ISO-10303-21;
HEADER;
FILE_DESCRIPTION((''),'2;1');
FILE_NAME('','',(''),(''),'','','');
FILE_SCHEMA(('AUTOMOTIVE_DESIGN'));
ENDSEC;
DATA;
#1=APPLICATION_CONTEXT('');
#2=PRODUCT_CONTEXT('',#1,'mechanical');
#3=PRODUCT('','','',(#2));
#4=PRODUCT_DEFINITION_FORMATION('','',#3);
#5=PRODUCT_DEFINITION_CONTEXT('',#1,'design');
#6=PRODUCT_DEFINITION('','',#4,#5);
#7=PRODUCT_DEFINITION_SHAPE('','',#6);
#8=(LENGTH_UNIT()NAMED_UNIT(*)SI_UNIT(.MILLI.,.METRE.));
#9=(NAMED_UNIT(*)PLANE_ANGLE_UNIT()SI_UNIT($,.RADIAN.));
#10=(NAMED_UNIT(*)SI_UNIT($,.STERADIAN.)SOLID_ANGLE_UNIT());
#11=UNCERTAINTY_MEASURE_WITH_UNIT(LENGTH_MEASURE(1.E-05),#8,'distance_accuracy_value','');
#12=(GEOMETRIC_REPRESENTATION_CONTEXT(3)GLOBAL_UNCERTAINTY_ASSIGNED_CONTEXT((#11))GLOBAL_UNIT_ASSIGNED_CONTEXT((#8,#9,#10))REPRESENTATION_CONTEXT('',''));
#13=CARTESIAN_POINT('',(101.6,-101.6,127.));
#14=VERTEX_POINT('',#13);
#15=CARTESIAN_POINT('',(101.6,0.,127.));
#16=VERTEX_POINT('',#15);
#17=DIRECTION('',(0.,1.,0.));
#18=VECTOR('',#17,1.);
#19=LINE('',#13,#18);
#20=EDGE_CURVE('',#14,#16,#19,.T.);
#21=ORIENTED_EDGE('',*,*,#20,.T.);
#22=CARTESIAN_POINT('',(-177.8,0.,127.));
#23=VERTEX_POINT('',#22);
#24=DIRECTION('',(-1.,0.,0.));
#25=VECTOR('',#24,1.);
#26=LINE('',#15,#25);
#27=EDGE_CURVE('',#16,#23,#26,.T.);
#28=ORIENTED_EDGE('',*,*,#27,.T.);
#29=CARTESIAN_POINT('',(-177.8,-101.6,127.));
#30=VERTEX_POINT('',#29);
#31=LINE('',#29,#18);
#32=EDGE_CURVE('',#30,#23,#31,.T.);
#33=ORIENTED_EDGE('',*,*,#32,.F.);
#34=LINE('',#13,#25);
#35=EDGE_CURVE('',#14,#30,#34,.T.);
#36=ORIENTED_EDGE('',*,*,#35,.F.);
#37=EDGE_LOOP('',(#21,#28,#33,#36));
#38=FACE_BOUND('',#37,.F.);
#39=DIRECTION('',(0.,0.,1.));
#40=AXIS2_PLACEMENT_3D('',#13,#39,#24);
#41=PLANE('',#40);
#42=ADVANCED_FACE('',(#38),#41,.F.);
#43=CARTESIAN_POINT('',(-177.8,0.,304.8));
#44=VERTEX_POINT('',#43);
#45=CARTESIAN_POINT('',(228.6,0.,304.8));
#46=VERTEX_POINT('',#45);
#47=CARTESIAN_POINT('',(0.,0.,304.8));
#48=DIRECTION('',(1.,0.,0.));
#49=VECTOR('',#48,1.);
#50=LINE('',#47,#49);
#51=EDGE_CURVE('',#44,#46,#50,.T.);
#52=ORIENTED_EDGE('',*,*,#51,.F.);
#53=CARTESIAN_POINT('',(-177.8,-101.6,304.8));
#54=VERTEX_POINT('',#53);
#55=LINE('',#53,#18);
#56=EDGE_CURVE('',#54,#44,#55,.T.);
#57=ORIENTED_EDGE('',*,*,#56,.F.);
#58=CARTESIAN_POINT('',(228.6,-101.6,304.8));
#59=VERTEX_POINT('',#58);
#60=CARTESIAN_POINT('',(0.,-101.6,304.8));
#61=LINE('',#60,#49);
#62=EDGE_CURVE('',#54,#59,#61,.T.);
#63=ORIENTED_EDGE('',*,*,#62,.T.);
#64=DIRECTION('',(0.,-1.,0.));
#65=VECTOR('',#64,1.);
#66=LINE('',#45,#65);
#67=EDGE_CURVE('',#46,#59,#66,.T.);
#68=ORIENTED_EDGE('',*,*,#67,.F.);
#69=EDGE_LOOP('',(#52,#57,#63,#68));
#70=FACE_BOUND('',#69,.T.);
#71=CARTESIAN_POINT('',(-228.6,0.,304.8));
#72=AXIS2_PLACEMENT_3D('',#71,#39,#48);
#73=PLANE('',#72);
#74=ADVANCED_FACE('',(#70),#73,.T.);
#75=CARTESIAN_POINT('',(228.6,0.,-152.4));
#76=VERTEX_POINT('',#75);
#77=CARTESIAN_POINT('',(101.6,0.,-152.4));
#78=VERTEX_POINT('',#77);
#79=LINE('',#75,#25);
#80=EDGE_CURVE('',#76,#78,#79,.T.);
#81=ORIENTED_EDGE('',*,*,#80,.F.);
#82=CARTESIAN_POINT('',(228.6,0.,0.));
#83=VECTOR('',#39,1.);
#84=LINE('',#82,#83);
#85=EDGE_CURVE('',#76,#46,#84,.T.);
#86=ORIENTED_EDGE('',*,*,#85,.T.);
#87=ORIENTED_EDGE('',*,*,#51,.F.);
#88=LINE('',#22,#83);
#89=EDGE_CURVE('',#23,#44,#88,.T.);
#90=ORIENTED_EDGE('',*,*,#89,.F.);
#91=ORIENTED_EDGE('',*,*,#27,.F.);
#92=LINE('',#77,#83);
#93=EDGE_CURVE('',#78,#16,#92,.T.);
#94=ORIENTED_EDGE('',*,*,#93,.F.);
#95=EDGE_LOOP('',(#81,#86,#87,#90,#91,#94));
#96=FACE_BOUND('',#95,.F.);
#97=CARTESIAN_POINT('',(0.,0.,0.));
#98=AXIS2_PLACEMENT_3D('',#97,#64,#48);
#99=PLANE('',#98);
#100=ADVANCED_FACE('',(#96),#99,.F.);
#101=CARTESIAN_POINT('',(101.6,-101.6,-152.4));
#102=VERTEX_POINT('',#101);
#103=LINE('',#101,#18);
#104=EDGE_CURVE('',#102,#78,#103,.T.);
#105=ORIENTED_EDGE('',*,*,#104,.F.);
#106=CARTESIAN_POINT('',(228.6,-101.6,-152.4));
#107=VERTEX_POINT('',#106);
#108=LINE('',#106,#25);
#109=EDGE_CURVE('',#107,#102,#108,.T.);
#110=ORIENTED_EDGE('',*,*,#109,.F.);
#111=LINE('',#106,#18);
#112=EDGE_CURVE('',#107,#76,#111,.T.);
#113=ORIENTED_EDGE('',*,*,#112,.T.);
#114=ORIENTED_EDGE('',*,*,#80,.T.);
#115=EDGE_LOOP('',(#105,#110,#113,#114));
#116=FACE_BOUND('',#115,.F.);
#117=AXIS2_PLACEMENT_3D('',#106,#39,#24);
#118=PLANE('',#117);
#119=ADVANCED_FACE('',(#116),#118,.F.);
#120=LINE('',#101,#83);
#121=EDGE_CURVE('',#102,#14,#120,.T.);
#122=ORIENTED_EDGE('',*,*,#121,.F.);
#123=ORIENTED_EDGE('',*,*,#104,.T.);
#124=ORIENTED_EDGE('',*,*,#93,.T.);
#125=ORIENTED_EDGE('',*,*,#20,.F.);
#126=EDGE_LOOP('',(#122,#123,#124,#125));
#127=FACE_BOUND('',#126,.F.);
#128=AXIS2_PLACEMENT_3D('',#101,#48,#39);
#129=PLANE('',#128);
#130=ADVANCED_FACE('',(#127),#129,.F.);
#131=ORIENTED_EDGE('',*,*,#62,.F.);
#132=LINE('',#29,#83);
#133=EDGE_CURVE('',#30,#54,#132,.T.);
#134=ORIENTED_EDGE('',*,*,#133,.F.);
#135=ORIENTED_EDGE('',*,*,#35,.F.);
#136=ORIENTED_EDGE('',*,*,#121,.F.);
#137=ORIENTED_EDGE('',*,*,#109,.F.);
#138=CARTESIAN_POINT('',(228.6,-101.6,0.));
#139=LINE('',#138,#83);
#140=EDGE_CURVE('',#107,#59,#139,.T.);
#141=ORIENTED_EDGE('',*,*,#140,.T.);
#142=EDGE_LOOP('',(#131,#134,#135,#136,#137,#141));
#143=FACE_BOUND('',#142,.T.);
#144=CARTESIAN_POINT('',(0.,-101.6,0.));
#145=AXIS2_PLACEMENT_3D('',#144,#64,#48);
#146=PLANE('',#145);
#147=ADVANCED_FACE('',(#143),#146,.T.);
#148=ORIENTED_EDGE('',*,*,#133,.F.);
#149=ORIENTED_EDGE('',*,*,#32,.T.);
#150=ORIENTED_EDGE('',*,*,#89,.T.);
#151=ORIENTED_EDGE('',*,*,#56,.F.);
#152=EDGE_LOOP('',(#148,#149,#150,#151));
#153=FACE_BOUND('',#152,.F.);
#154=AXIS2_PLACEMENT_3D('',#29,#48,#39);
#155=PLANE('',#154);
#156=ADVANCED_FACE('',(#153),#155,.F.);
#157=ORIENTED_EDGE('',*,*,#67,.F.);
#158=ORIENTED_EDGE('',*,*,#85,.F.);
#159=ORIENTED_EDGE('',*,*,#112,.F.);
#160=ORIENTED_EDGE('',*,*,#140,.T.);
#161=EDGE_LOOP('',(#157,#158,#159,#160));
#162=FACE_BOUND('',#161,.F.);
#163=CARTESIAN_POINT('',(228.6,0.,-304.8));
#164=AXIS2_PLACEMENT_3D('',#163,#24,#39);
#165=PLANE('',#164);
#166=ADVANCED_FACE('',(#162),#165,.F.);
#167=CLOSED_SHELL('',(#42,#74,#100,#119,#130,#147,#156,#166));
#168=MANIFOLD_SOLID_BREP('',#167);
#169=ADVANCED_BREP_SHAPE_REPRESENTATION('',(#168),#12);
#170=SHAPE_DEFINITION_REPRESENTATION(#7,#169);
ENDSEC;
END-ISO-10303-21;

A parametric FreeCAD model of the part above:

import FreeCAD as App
import Part
import Sketcher

V = App.Vector
Q = App.Units.Quantity

doc = App.newDocument("Part")
body = doc.addObject("PartDesign::Body", "Body")

# Sketch on XZ plane
sketch1 = body.newObject("Sketcher::SketchObject", "Sketch")
sketch1.AttachmentSupport = (doc.getObject("XZ_Plane"), [""])
sketch1.MapMode = "FlatFace"
sketch1.addGeometry(Part.LineSegment(V(-229, 305, 0), V(-229, -305, 0)), False)
sketch1.addGeometry(Part.LineSegment(V(-229, -305, 0), V(229, -305, 0)), False)
sketch1.addGeometry(Part.LineSegment(V(229, -305, 0), V(229, 305, 0)), False)
sketch1.addGeometry(Part.LineSegment(V(229, 305, 0), V(-229, 305, 0)), False)
sketch1.addConstraint(Sketcher.Constraint("Coincident", 0, 2, 1, 1))
sketch1.addConstraint(Sketcher.Constraint("Coincident", 1, 2, 2, 1))
sketch1.addConstraint(Sketcher.Constraint("Coincident", 2, 2, 3, 1))
sketch1.addConstraint(Sketcher.Constraint("Coincident", 3, 2, 0, 1))
sketch1.addConstraint(Sketcher.Constraint("Vertical", 0))
sketch1.addConstraint(Sketcher.Constraint("Horizontal", 1))
sketch1.addConstraint(Sketcher.Constraint("Vertical", 2))
sketch1.addConstraint(Sketcher.Constraint("Horizontal", 3))
sketch1.addConstraint(Sketcher.Constraint("Symmetric", 0, 2, 2, 2, -1, 1))
sketch1.addConstraint(Sketcher.Constraint("DistanceX", 1, 1, 1, 2, Q("18 in")))
sketch1.addConstraint(Sketcher.Constraint("DistanceY", 0, 2, 0, 1, Q("24 in")))
pad1 = body.newObject("PartDesign::Pad", "Pad")
pad1.Profile = sketch1
pad1.Length = Q("4 in")

# Sketch on XZ plane
sketch2 = body.newObject("Sketcher::SketchObject", "Sketch001")
sketch2.AttachmentSupport = (doc.getObject("XZ_Plane"), [""])
sketch2.MapMode = "FlatFace"
sketch2.AttachmentOffset = App.Placement(V(0, 0, 4 * 25.4), App.Rotation())
sketch2.addGeometry(Part.LineSegment(V(102, 127, 0), V(-178, 127, 0)), False)
sketch2.addGeometry(Part.LineSegment(V(-178, 127, 0), V(-178, 305, 0)), False)
sketch2.addGeometry(Part.LineSegment(V(-178, 305, 0), V(-229, 305, 0)), False)
sketch2.addGeometry(Part.LineSegment(V(-229, 305, 0), V(-229, -305, 0)), False)
sketch2.addGeometry(Part.LineSegment(V(-229, -305, 0), V(229, -305, 0)), False)
sketch2.addGeometry(Part.LineSegment(V(229, -305, 0), V(229, -152, 0)), False)
sketch2.addGeometry(Part.LineSegment(V(229, -152, 0), V(102, -152, 0)), False)
sketch2.addGeometry(Part.LineSegment(V(102, -152, 0), V(102, 127, 0)), False)
sketch2.addConstraint(Sketcher.Constraint("Coincident", 0, 2, 1, 1))
sketch2.addConstraint(Sketcher.Constraint("Coincident", 1, 2, 2, 1))
sketch2.addConstraint(Sketcher.Constraint("Coincident", 2, 2, 3, 1))
sketch2.addConstraint(Sketcher.Constraint("Coincident", 3, 2, 4, 1))
sketch2.addConstraint(Sketcher.Constraint("Coincident", 4, 2, 5, 1))
sketch2.addConstraint(Sketcher.Constraint("Coincident", 5, 2, 6, 1))
sketch2.addConstraint(Sketcher.Constraint("Coincident", 6, 2, 7, 1))
sketch2.addConstraint(Sketcher.Constraint("Coincident", 7, 2, 0, 1))
sketch2.addConstraint(Sketcher.Constraint("Horizontal", 0))
sketch2.addConstraint(Sketcher.Constraint("Vertical", 1))
sketch2.addConstraint(Sketcher.Constraint("Horizontal", 2))
sketch2.addConstraint(Sketcher.Constraint("Vertical", 3))
sketch2.addConstraint(Sketcher.Constraint("Horizontal", 4))
sketch2.addConstraint(Sketcher.Constraint("Vertical", 5))
sketch2.addConstraint(Sketcher.Constraint("Horizontal", 6))
sketch2.addConstraint(Sketcher.Constraint("Vertical", 7))
sketch2.addConstraint(Sketcher.Constraint("Symmetric", 2, 2, 4, 2, -1, 1))
sketch2.addConstraint(Sketcher.Constraint("Equal", 0, 7))
sketch2.addConstraint(Sketcher.Constraint("DistanceX", 0, 2, 0, 1, Q("11 in")))
sketch2.addConstraint(Sketcher.Constraint("DistanceX", 2, 2, 2, 1, Q("2 in")))
sketch2.addConstraint(Sketcher.Constraint("DistanceX", 4, 1, 4, 2, Q("18 in")))
sketch2.addConstraint(Sketcher.Constraint("DistanceY", 1, 1, 1, 2, Q("7 in")))
sketch2.addConstraint(Sketcher.Constraint("DistanceY", 3, 2, 3, 1, Q("24 in")))
pocket1 = body.newObject("PartDesign::Pocket", "Pocket")
pocket1.Profile = sketch2
pocket1.Type = "ThroughAll"

doc.recompute()
